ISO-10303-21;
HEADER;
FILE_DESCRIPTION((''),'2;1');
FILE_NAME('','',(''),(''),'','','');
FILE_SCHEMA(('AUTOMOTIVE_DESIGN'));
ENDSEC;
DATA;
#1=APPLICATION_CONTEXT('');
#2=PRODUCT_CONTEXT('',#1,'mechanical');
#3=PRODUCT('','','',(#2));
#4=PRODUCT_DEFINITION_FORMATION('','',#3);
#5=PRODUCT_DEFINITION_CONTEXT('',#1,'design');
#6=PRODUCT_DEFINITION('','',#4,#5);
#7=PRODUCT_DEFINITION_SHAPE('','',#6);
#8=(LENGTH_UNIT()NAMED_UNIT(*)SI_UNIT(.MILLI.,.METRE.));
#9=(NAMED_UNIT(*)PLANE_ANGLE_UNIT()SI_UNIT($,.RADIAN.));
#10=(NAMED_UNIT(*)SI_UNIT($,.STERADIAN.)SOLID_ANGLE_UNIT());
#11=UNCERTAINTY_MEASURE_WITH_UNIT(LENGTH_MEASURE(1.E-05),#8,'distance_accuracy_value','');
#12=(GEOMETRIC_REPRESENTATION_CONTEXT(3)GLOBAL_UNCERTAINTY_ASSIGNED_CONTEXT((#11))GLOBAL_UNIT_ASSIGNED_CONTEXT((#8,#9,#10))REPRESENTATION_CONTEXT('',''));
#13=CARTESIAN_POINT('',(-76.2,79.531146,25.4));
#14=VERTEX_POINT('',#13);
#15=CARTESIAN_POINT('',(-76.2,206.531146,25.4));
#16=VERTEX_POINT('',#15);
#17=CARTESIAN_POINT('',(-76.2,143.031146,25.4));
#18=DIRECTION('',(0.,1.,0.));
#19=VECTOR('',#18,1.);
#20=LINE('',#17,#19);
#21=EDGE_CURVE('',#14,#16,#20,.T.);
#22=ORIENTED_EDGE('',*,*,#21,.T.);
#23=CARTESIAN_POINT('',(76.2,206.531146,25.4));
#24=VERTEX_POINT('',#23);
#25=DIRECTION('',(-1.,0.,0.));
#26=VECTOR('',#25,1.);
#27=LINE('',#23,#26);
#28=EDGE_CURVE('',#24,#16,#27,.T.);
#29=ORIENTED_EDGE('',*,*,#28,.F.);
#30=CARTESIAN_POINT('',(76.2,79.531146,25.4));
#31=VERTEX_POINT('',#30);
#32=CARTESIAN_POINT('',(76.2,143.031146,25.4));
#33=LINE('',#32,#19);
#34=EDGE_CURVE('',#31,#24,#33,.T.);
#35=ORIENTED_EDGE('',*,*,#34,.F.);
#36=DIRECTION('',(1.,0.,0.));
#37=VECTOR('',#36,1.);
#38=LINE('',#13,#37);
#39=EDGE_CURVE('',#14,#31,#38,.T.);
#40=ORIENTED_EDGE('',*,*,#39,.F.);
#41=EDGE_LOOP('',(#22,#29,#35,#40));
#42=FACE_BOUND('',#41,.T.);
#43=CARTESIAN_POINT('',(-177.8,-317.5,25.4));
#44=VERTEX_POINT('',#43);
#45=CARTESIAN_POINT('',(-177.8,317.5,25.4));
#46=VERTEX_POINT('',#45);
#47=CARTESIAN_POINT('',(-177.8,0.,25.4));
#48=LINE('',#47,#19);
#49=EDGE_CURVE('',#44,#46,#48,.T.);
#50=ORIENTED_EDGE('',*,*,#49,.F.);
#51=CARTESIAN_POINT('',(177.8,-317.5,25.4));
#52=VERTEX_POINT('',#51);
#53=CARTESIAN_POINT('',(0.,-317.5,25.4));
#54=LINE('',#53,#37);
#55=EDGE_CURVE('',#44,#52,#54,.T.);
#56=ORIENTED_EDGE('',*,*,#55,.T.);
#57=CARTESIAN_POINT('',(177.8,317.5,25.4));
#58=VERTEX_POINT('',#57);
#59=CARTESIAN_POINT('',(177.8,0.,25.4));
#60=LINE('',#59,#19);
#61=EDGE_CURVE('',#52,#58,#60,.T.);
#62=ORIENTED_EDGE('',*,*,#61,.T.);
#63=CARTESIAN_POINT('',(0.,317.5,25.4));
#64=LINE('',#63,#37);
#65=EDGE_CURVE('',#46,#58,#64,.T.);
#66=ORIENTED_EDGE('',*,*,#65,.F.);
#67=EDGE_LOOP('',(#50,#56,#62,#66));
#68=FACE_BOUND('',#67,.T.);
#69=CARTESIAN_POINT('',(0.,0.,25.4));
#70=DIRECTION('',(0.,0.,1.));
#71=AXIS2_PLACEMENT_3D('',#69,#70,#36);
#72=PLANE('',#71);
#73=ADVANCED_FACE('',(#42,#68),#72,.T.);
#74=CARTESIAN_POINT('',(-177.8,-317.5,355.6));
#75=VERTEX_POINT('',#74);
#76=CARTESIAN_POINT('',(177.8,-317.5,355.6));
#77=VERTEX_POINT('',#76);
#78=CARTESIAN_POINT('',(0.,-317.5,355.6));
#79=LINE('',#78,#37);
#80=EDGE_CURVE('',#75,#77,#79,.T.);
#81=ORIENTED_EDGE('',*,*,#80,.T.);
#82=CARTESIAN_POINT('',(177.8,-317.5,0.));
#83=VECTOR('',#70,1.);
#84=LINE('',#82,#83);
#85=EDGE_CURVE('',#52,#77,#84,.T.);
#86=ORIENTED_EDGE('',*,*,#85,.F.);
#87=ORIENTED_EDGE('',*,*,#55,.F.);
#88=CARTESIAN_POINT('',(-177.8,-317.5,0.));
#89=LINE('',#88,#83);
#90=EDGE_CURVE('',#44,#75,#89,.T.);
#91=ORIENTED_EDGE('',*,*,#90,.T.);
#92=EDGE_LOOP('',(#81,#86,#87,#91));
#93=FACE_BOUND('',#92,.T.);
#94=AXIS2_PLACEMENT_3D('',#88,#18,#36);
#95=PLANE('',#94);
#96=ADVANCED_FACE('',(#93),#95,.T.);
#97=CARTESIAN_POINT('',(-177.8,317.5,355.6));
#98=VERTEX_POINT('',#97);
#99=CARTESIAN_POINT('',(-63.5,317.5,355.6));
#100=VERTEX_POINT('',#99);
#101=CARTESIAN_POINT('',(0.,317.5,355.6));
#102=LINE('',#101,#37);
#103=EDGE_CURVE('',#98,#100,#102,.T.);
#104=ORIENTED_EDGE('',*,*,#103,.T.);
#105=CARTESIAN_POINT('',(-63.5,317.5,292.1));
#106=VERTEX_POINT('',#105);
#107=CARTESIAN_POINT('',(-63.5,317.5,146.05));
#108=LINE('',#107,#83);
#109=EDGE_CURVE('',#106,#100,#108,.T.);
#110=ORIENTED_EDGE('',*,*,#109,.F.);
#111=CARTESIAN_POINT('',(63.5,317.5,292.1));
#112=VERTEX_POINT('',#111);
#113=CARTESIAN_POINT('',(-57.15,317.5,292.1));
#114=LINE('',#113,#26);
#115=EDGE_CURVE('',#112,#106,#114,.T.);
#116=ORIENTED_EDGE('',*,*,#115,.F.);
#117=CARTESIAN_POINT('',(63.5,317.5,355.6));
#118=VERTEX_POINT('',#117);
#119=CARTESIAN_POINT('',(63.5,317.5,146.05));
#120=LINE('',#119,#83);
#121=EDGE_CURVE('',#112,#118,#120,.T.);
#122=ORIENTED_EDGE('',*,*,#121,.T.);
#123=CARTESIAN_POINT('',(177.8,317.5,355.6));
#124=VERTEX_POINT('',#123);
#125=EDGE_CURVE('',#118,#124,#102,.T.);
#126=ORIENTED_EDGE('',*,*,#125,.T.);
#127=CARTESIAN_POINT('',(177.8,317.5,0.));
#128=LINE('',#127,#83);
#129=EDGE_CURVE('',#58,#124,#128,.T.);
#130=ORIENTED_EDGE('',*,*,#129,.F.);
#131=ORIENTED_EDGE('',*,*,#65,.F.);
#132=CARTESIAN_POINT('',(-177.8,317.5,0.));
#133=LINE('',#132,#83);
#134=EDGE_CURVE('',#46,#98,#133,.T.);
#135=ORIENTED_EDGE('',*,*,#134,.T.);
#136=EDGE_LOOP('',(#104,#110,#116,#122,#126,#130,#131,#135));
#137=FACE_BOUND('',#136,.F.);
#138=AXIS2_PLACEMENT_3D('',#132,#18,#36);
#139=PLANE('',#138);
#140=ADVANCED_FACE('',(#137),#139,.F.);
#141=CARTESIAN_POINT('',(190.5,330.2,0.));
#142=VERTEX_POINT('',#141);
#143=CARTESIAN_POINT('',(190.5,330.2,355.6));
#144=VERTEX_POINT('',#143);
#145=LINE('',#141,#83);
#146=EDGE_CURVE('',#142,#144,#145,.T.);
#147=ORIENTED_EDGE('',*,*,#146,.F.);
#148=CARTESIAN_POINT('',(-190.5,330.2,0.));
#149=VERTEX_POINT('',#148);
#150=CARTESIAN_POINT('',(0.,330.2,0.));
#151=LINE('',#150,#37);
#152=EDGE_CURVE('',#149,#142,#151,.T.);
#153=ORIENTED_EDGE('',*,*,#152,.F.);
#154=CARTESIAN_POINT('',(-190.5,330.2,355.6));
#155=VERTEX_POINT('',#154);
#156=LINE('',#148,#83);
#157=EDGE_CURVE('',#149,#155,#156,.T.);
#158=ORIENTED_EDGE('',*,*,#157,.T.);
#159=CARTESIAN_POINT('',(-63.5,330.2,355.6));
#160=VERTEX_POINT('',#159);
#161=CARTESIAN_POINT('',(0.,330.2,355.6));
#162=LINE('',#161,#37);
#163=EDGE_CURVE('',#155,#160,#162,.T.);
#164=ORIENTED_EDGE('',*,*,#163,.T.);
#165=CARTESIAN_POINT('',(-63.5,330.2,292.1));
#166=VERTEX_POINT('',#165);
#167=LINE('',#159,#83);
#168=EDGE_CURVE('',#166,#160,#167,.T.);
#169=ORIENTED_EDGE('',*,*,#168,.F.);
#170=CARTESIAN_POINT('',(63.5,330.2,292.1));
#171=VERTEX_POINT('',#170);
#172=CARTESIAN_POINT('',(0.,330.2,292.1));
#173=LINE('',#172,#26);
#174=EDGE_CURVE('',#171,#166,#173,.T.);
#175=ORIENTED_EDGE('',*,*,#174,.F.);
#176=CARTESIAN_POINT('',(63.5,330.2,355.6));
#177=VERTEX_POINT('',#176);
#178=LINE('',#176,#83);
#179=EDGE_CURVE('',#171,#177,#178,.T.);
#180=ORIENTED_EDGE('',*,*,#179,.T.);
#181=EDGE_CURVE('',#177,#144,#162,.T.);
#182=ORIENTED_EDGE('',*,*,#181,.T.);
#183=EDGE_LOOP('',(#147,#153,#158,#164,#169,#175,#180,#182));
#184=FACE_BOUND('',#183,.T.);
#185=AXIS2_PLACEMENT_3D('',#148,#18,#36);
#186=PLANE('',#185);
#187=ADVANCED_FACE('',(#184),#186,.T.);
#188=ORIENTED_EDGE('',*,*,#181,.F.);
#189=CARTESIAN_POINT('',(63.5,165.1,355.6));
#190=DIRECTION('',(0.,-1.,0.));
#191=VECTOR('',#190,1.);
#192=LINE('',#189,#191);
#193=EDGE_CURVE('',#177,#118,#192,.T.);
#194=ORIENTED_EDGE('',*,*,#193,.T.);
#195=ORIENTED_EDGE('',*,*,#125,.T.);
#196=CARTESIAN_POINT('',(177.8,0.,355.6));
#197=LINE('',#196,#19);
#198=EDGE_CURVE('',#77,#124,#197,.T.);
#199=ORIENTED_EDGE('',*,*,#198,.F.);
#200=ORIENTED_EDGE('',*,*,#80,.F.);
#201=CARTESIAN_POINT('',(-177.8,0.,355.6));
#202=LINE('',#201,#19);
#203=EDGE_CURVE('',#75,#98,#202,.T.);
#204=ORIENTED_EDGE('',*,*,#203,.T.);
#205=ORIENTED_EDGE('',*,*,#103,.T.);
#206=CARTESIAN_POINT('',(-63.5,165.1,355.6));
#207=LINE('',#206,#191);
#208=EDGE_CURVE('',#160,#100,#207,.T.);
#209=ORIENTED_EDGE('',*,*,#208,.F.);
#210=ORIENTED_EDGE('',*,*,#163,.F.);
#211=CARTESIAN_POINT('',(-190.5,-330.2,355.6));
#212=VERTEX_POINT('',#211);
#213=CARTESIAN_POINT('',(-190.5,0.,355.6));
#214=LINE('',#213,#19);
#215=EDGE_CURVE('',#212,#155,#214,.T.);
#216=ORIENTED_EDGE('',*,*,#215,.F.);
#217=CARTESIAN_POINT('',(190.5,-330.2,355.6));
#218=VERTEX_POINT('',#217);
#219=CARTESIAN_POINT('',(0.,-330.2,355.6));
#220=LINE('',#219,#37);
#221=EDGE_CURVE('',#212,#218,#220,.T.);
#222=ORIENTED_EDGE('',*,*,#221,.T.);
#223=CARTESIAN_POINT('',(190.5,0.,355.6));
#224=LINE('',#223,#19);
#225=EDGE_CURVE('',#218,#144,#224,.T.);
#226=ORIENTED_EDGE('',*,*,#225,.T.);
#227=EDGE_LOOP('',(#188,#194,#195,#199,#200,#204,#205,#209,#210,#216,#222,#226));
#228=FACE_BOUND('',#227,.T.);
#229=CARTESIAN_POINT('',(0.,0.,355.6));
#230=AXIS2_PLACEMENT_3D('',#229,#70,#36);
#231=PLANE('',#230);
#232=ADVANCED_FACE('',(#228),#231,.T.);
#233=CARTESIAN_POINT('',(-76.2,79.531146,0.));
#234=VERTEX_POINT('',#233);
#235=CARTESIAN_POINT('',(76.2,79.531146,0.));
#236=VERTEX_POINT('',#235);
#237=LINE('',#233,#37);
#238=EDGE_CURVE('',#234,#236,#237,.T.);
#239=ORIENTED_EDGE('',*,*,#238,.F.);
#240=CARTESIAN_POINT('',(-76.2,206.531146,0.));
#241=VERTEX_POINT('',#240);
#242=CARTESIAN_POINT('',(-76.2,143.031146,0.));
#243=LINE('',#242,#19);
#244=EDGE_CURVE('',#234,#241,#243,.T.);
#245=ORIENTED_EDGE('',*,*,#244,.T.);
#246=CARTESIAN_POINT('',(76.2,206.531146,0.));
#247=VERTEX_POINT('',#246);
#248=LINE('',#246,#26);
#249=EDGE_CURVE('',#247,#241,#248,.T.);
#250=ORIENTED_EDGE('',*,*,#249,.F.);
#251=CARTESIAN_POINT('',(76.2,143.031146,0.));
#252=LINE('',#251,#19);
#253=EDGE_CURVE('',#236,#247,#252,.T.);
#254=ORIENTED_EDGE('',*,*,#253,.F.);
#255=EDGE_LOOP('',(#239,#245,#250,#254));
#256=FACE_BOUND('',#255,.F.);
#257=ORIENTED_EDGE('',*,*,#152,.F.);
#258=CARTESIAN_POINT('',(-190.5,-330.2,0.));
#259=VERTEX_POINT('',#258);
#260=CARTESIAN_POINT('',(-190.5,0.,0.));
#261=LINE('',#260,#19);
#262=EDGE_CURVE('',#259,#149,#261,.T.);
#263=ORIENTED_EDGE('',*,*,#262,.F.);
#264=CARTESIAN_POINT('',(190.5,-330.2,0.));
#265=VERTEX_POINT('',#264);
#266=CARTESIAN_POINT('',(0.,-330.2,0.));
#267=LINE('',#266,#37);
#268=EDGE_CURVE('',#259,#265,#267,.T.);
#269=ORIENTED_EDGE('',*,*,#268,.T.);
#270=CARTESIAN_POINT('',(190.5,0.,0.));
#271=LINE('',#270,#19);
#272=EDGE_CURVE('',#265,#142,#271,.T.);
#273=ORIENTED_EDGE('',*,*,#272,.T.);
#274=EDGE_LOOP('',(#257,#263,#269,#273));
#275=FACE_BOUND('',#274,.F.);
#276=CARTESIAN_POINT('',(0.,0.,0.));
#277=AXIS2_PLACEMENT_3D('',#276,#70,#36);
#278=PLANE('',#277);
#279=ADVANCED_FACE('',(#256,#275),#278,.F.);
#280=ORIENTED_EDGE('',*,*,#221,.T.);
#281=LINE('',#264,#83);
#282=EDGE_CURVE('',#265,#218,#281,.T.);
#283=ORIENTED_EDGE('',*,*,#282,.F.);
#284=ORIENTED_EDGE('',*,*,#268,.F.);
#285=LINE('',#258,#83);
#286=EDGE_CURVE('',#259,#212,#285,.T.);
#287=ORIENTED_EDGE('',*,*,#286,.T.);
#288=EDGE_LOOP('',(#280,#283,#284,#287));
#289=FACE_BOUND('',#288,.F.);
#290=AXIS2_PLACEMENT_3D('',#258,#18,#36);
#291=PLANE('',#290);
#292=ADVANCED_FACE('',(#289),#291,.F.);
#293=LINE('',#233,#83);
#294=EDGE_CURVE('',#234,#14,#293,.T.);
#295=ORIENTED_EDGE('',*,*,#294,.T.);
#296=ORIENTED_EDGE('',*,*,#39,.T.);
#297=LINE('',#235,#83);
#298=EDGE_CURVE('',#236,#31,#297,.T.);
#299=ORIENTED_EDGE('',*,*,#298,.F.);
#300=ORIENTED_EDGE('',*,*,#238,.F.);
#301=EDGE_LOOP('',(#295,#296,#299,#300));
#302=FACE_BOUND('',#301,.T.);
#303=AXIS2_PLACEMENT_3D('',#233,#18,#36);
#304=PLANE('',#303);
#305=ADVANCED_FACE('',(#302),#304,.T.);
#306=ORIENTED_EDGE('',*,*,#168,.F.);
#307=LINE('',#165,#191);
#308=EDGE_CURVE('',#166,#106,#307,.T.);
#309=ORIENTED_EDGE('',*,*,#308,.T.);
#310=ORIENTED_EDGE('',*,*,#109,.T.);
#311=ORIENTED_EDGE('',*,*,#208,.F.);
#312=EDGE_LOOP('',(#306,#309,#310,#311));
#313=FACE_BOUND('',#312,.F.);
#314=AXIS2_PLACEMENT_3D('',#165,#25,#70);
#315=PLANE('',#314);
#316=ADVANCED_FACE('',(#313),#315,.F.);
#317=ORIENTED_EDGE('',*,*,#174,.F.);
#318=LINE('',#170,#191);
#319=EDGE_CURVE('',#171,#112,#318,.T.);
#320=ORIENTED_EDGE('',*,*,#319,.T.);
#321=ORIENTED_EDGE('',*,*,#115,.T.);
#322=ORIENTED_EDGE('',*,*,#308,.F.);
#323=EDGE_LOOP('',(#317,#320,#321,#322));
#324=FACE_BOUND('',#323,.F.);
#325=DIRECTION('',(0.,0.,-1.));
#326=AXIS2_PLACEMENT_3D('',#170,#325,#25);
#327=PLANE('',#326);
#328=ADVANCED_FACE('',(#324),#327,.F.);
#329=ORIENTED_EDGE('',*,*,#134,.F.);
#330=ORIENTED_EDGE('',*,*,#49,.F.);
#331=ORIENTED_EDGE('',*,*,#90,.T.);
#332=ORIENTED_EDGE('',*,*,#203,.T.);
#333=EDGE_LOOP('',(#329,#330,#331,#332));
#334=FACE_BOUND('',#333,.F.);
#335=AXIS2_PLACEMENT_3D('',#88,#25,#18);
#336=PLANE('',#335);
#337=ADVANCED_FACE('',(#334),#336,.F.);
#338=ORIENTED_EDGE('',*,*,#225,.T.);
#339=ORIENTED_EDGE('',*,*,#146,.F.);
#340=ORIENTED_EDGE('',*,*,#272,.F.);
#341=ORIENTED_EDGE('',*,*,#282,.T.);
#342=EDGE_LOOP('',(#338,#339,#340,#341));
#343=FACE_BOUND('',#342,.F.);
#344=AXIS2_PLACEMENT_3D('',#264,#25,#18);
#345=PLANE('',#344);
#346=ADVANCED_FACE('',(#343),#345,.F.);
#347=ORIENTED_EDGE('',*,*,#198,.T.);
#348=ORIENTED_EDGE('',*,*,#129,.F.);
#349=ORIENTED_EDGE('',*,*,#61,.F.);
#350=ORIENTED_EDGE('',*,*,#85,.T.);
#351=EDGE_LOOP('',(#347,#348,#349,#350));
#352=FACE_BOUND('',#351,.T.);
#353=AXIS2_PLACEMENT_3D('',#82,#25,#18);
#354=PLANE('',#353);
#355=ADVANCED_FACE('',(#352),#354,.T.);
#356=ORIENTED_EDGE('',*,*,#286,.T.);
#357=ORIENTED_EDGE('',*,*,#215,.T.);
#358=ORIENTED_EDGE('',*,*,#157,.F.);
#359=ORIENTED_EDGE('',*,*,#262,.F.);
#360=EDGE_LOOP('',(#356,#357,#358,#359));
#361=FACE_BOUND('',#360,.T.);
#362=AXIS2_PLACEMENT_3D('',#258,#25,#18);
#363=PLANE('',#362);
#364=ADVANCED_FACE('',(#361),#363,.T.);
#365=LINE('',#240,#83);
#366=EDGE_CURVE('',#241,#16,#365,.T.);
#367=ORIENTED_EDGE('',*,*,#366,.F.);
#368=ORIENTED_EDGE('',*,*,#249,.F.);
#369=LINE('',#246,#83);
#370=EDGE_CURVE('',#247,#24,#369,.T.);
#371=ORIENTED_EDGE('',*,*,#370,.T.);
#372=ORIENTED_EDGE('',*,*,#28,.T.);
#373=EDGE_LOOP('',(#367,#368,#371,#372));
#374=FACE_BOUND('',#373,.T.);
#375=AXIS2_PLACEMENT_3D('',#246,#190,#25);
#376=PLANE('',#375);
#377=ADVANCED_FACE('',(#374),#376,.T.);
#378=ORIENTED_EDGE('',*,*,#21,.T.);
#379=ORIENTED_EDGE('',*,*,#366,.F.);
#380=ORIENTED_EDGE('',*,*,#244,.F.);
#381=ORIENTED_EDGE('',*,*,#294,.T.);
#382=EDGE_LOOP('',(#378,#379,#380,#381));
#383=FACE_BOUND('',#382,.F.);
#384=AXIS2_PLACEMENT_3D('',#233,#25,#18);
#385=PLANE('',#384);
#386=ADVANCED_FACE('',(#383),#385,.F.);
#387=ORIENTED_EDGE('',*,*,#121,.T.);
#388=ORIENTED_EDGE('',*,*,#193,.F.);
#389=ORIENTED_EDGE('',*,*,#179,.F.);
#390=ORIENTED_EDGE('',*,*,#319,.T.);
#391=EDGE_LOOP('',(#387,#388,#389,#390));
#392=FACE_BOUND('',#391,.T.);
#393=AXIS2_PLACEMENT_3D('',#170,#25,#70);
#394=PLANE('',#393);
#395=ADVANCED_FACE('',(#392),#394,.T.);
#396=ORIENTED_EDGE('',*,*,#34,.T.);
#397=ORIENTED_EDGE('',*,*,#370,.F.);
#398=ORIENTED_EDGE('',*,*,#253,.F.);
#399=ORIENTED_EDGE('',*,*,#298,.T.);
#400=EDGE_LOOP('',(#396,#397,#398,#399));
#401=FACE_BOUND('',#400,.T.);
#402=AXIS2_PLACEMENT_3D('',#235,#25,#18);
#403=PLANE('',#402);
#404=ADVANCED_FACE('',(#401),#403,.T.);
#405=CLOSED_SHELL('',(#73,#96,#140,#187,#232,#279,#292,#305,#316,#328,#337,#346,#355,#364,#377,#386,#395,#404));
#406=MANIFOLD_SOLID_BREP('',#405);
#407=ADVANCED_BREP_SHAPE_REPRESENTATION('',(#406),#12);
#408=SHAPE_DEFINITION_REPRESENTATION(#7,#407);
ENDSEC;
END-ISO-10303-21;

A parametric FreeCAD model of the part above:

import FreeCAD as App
import Part
import Sketcher
from FreeCAD import Vector
Q = App.Units.Quantity

doc = App.newDocument("Part")
body = doc.addObject("PartDesign::Body", "Body")

# Sketch on XY plane
sketch1 = doc.addObject("Sketcher::SketchObject", "Sketch")
body.addObject(sketch1)
sketch1.AttachmentSupport = (doc.XY_Plane, [""])
sketch1.MapMode = "FlatFace"
sketch1.addGeometry([
    Part.LineSegment(Vector(-190.5, 330.2, 0), Vector(-190.5, -330.2, 0)),  # 0
    Part.LineSegment(Vector(-190.5, -330.2, 0), Vector(190.5, -330.2, 0)),  # 1
    Part.LineSegment(Vector(190.5, -330.2, 0), Vector(190.5, 330.2, 0)),  # 2
    Part.LineSegment(Vector(190.5, 330.2, 0), Vector(-190.5, 330.2, 0)),  # 3
    Part.LineSegment(Vector(177.8, -317.5, 0), Vector(-177.8, -317.5, 0)),  # 4
    Part.LineSegment(Vector(-177.8, -317.5, 0), Vector(-177.8, 317.5, 0)),  # 5
    Part.LineSegment(Vector(-177.8, 317.5, 0), Vector(177.8, 317.5, 0)),  # 6
    Part.LineSegment(Vector(177.8, 317.5, 0), Vector(177.8, -317.5, 0)),  # 7
], False)
sketch1.addConstraint([
    Sketcher.Constraint("Coincident", 0, 2, 1, 1),
    Sketcher.Constraint("Coincident", 1, 2, 2, 1),
    Sketcher.Constraint("Coincident", 2, 2, 3, 1),
    Sketcher.Constraint("Coincident", 3, 2, 0, 1),
    Sketcher.Constraint("Coincident", 4, 2, 5, 1),
    Sketcher.Constraint("Coincident", 5, 2, 6, 1),
    Sketcher.Constraint("Coincident", 6, 2, 7, 1),
    Sketcher.Constraint("Coincident", 7, 2, 4, 1),
    Sketcher.Constraint("Vertical", 0),
    Sketcher.Constraint("Horizontal", 1),
    Sketcher.Constraint("Vertical", 2),
    Sketcher.Constraint("Horizontal", 3),
    Sketcher.Constraint("Horizontal", 4),
    Sketcher.Constraint("Vertical", 5),
    Sketcher.Constraint("Horizontal", 6),
    Sketcher.Constraint("Vertical", 7),
    Sketcher.Constraint("Symmetric", 0, 2, 2, 2, -1, 1),
    Sketcher.Constraint("Symmetric", 4, 2, 6, 2, -1, 1),
    Sketcher.Constraint("DistanceX", 1, 1, 1, 2, Q("15 in")),
    Sketcher.Constraint("DistanceX", 4, 2, 4, 1, Q("14 in")),
    Sketcher.Constraint("DistanceY", 0, 2, 0, 1, Q("26 in")),
    Sketcher.Constraint("DistanceY", 5, 1, 5, 2, Q("25 in")),
])
pad1 = doc.addObject("PartDesign::Pad", "Pad")
body.addObject(pad1)
pad1.Profile = sketch1
pad1.Length = Q("14 in")

# Sketch on XY plane
sketch2 = doc.addObject("Sketcher::SketchObject", "Sketch001")
body.addObject(sketch2)
sketch2.AttachmentSupport = (doc.XY_Plane, [""])
sketch2.MapMode = "FlatFace"
sketch2.addGeometry([
    Part.LineSegment(Vector(-177.8, 317.5, 0), Vector(-177.8, -317.5, 0)),
    Part.LineSegment(Vector(-177.8, -317.5, 0), Vector(177.8, -317.5, 0)),
    Part.LineSegment(Vector(177.8, -317.5, 0), Vector(177.8, 317.5, 0)),
    Part.LineSegment(Vector(177.8, 317.5, 0), Vector(-177.8, 317.5, 0)),
], False)
sketch2.addConstraint([
    Sketcher.Constraint("Coincident", 0, 2, 1, 1),
    Sketcher.Constraint("Coincident", 1, 2, 2, 1),
    Sketcher.Constraint("Coincident", 2, 2, 3, 1),
    Sketcher.Constraint("Coincident", 3, 2, 0, 1),
    Sketcher.Constraint("Vertical", 0),
    Sketcher.Constraint("Horizontal", 1),
    Sketcher.Constraint("Vertical", 2),
    Sketcher.Constraint("Horizontal", 3),
    Sketcher.Constraint("Symmetric", 0, 2, 2, 2, -1, 1),
    Sketcher.Constraint("DistanceX", 1, 1, 1, 2, Q("14 in")),
    Sketcher.Constraint("DistanceY", 0, 2, 0, 1, Q("25 in")),
])
pad2 = doc.addObject("PartDesign::Pad", "Pad001")
body.addObject(pad2)
pad2.Profile = sketch2
pad2.Length = Q("1 in")

# Sketch on XY plane
sketch3 = doc.addObject("Sketcher::SketchObject", "Sketch002")
body.addObject(sketch3)
sketch3.AttachmentSupport = (doc.XY_Plane, [""])
sketch3.MapMode = "FlatFace"
sketch3.addGeometry([
    Part.LineSegment(Vector(-76.2, 206.531146, 0), Vector(-76.2, 79.531146, 0)),
    Part.LineSegment(Vector(-76.2, 79.531146, 0), Vector(76.2, 79.531146, 0)),
    Part.LineSegment(Vector(76.2, 79.531146, 0), Vector(76.2, 206.531146, 0)),
    Part.LineSegment(Vector(76.2, 206.531146, 0), Vector(-76.2, 206.531146, 0)),
], False)
sketch3.addConstraint([
    Sketcher.Constraint("Coincident", 0, 2, 1, 1),
    Sketcher.Constraint("Coincident", 1, 2, 2, 1),
    Sketcher.Constraint("Coincident", 2, 2, 3, 1),
    Sketcher.Constraint("Coincident", 3, 2, 0, 1),
    Sketcher.Constraint("Vertical", 0),
    Sketcher.Constraint("Horizontal", 1),
    Sketcher.Constraint("Vertical", 2),
    Sketcher.Constraint("Horizontal", 3),
    Sketcher.Constraint("DistanceX", 1, 1, 1, 2, Q("6 in")),
    Sketcher.Constraint("DistanceY", 0, 2, 0, 1, Q("5 in")),
    Sketcher.Constraint("DistanceX", 0, 2, -1, 1, Q("3 in")),
    Sketcher.Constraint("DistanceY", -1, 1, 0, 2, Q("79.531146 mm")),
])
pocket1 = doc.addObject("PartDesign::Pocket", "Pocket")
body.addObject(pocket1)
pocket1.Profile = sketch3
pocket1.Length = Q("1 in")
pocket1.Reversed = True

# Sketch on XZ plane
sketch4 = doc.addObject("Sketcher::SketchObject", "Sketch003")
body.addObject(sketch4)
sketch4.AttachmentSupport = (doc.XZ_Plane, [""])
sketch4.MapMode = "FlatFace"
sketch4.AttachmentOffset = App.Placement(Vector(0, 0, -13 * 25.4), App.Rotation())
sketch4.addGeometry([
    Part.LineSegment(Vector(63.5, 419.1, 0), Vector(63.5, 292.1, 0)),
    Part.LineSegment(Vector(63.5, 292.1, 0), Vector(-63.5, 292.1, 0)),
    Part.LineSegment(Vector(-63.5, 292.1, 0), Vector(-63.5, 419.1, 0)),
    Part.LineSegment(Vector(-63.5, 419.1, 0), Vector(63.5, 419.1, 0)),
], False)
sketch4.addConstraint([
    Sketcher.Constraint("Coincident", 0, 2, 1, 1),
    Sketcher.Constraint("Coincident", 1, 2, 2, 1),
    Sketcher.Constraint("Coincident", 2, 2, 3, 1),
    Sketcher.Constraint("Coincident", 3, 2, 0, 1),
    Sketcher.Constraint("Vertical", 0),
    Sketcher.Constraint("Horizontal", 1),
    Sketcher.Constraint("Vertical", 2),
    Sketcher.Constraint("Horizontal", 3),
    Sketcher.Constraint("Equal", 3, 0),
    Sketcher.Constraint("DistanceX", 1, 2, 1, 1, Q("5 in")),
    Sketcher.Constraint("DistanceX", -1, 1, 0, 2, Q("2.5 in")),
    Sketcher.Constraint("DistanceY", -1, 1, 0, 2, Q("11.5 in")),
])
pocket2 = doc.addObject("PartDesign::Pocket", "Pocket001")
body.addObject(pocket2)
pocket2.Profile = sketch4
pocket2.Length = Q("1 in")
pocket2.Reversed = True

doc.recompute()
